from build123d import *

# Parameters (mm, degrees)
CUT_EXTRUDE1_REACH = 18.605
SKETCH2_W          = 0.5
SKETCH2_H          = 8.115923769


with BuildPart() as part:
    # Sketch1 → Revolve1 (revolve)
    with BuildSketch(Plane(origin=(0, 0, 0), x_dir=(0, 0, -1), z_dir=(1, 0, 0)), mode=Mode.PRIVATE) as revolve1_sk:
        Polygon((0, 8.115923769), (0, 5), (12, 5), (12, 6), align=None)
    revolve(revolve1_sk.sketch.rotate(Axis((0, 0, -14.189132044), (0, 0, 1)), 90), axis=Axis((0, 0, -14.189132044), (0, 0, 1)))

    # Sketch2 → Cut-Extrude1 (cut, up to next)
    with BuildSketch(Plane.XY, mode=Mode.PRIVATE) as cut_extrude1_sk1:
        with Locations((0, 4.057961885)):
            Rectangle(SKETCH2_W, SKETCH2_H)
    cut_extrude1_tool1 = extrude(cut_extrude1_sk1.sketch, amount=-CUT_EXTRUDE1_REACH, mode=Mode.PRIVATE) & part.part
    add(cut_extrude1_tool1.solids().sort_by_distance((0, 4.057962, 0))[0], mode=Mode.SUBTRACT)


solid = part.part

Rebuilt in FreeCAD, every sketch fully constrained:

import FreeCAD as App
import Part
import Sketcher

V = App.Vector
Q = App.Units.Quantity

doc = App.newDocument("Part")
body = doc.addObject("PartDesign::Body", "Body")

sketch1 = body.newObject("Sketcher::SketchObject", "Sketch")
sketch1.AttachmentSupport = (doc.getObject("YZ_Plane"), [""])
sketch1.MapMode = "FlatFace"
sketch1.addGeometry([
    Part.LineSegment(V(8.1, 0, 0), V(5, 0, 0)),
    Part.LineSegment(V(5, 0, 0), V(5, -12, 0)),
    Part.LineSegment(V(5, -12, 0), V(6, -12, 0)),
    Part.LineSegment(V(6, -12, 0), V(8.1, 0, 0)),
], False)
sketch1.addConstraint([
    Sketcher.Constraint("Coincident", 0, 2, 1, 1),
    Sketcher.Constraint("Coincident", 1, 2, 2, 1),
    Sketcher.Constraint("Coincident", 2, 2, 3, 1),
    Sketcher.Constraint("Coincident", 3, 2, 0, 1),
    Sketcher.Constraint("Horizontal", 0),
    Sketcher.Constraint("Vertical", 1),
    Sketcher.Constraint("Horizontal", 2),
    Sketcher.Constraint("PointOnObject", 0, 2, -1),
    Sketcher.Constraint("DistanceX", 2, 1, 2, 2, 1.0),
    Sketcher.Constraint("DistanceY", 1, 2, 1, 1, 12.0),
    Sketcher.Constraint("Angle", 3, Q("80 deg")),
    Sketcher.Constraint("DistanceX", -1, 1, 0, 2, 5.0),
])
revolution = body.newObject("PartDesign::Revolution", "Revolution")
revolution.Profile = sketch1
revolution.ReferenceAxis = (sketch1, ["V_Axis"])
revolution.Angle = 360

sketch2 = body.newObject("Sketcher::SketchObject", "Sketch001")
sketch2.AttachmentSupport = (doc.getObject("XY_Plane"), [""])
sketch2.MapMode = "FlatFace"
sketch2.addGeometry([
    Part.LineSegment(V(-0.2, 8.1, 0), V(-0.2, 0, 0)),
    Part.LineSegment(V(-0.2, 0, 0), V(0.2, 0, 0)),
    Part.LineSegment(V(0.2, 0, 0), V(0.2, 8.1, 0)),
    Part.LineSegment(V(0.2, 8.1, 0), V(-0.2, 8.1, 0)),
], False)
sketch2.addConstraint([
    Sketcher.Constraint("Coincident", 0, 2, 1, 1),
    Sketcher.Constraint("Coincident", 1, 2, 2, 1),
    Sketcher.Constraint("Coincident", 2, 2, 3, 1),
    Sketcher.Constraint("Coincident", 3, 2, 0, 1),
    Sketcher.Constraint("Vertical", 0),
    Sketcher.Constraint("Horizontal", 1),
    Sketcher.Constraint("Vertical", 2),
    Sketcher.Constraint("Horizontal", 3),
    Sketcher.Constraint("Symmetric", 0, 2, 1, 2, -1, 1),
    Sketcher.Constraint("DistanceX", 1, 1, 1, 2, 0.5),
    Sketcher.Constraint("DistanceY", 0, 2, 0, 1, 8.115924),
])
pocket1 = body.newObject("PartDesign::Pocket", "Pocket")
pocket1.Profile = sketch2
pocket1.Length = 12

doc.recompute()
